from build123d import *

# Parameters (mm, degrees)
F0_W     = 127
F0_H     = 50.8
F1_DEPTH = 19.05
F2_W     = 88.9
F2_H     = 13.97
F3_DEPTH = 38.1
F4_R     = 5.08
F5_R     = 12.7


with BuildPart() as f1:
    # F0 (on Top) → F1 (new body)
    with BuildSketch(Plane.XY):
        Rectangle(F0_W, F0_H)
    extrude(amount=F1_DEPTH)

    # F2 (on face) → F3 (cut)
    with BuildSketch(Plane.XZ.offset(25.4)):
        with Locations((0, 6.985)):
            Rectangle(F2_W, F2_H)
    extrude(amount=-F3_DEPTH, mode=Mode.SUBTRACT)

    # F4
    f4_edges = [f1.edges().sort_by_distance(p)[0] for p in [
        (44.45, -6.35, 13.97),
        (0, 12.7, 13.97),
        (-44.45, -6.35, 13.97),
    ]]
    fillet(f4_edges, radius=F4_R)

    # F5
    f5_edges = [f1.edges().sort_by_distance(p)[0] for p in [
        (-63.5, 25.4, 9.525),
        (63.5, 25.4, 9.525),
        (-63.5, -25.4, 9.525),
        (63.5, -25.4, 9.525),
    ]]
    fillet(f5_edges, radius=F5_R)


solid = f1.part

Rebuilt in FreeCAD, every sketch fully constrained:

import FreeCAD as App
import Part
import Sketcher
from FreeCAD import Vector
Q = App.Units.Quantity


def edges_at(feature, points):
    """Names of the edges that pass closest to the given points."""
    edges = feature.Shape.Edges
    near = lambda p: min(range(len(edges)), key=lambda i: edges[i].distToShape(Part.Vertex(*p))[0])
    return sorted({f"Edge{near(p) + 1}" for p in points})


def add_polygon(sketch, points):
    """Adds a closed chain of lines whose ends are joined by coincident constraints."""
    first, n = sketch.GeometryCount, len(points)
    for a, b in zip(points, points[1:] + points[:1]):
        sketch.addGeometry(Part.LineSegment(App.Vector(*a, 0), App.Vector(*b, 0)), False)
    for i in range(n):
        sketch.addConstraint(Sketcher.Constraint("Coincident", first + i, 2, first + (i + 1) % n, 1))

doc = App.newDocument("Part")
params = doc.addObject("Spreadsheet::Sheet", "Params")
for row, (alias, value) in enumerate([
    ("sketch1_width", "5 in"),
    ("sketch1_height", "2 in"),
    ("pad1_length", "0.75 in"),
    ("sketch2_width", "3.5 in"),
    ("sketch2_height", "0.55 in"),
    ("pocket1_length", "1.5 in"),
    ("fillet_radius", "0.2 in"),
    ("fillet2_radius", "0.5 in"),
], start=1):
    params.set(f"A{row}", alias)
    params.set(f"B{row}", "=" + value)
    params.setAlias(f"B{row}", alias)

body = doc.addObject("PartDesign::Body", "Body")

# Sketch on XY plane
sketch1 = doc.addObject("Sketcher::SketchObject", "Sketch")
body.addObject(sketch1)
sketch1.AttachmentSupport = (doc.XY_Plane, [""])
sketch1.MapMode = "FlatFace"
add_polygon(sketch1, [(-64, 25), (-64, -25), (64, -25), (64, 25)])  # lines 0-3
sketch1.addConstraint([
    Sketcher.Constraint("Vertical", 0),
    Sketcher.Constraint("Horizontal", 1),
    Sketcher.Constraint("Vertical", 2),
    Sketcher.Constraint("Horizontal", 3),
    Sketcher.Constraint("Symmetric", 0, 2, 2, 2, -1, 1),
    Sketcher.Constraint("DistanceX", 1, 1, 1, 2, Q("5 in")),
    Sketcher.Constraint("DistanceY", 0, 2, 0, 1, Q("2 in")),
])
sketch1.setExpression("Constraints[9]", "Params.sketch1_width")
sketch1.setExpression("Constraints[10]", "Params.sketch1_height")
pad1 = doc.addObject("PartDesign::Pad", "Pad")
body.addObject(pad1)
pad1.Profile = sketch1
pad1.setExpression("Length", "Params.pad1_length")

# Sketch on XZ plane
sketch2 = doc.addObject("Sketcher::SketchObject", "Sketch001")
body.addObject(sketch2)
sketch2.AttachmentSupport = (doc.XZ_Plane, [""])
sketch2.MapMode = "FlatFace"
sketch2.AttachmentOffset = App.Placement(Vector(0, 0, 1 * 25.4), App.Rotation())
add_polygon(sketch2, [(-44, 14), (-44, 0), (44, 0), (44, 14)])  # lines 0-3
sketch2.addConstraint([
    Sketcher.Constraint("Vertical", 0),
    Sketcher.Constraint("Horizontal", 1),
    Sketcher.Constraint("Vertical", 2),
    Sketcher.Constraint("Horizontal", 3),
    Sketcher.Constraint("Symmetric", 0, 2, 1, 2, -1, 1),
    Sketcher.Constraint("DistanceX", 1, 1, 1, 2, Q("3.5 in")),
    Sketcher.Constraint("DistanceY", 0, 2, 0, 1, Q("0.55 in")),
])
sketch2.setExpression("Constraints[9]", "Params.sketch2_width")
sketch2.setExpression("Constraints[10]", "Params.sketch2_height")
pocket1 = doc.addObject("PartDesign::Pocket", "Pocket")
body.addObject(pocket1)
pocket1.Profile = sketch2
pocket1.setExpression("Length", "Params.pocket1_length")
doc.recompute()

fillet = doc.addObject("PartDesign::Fillet", "Fillet")
body.addObject(fillet)
fillet.Base = (pocket1, edges_at(pocket1, [(44.45, -6.35, 13.97), (0, 12.7, 13.97), (-44.45, -6.35, 13.97)]))
fillet.setExpression("Radius", "Params.fillet_radius")
doc.recompute()

fillet2 = doc.addObject("PartDesign::Fillet", "Fillet001")
body.addObject(fillet2)
fillet2.Base = (fillet, edges_at(fillet, [
    (-63.5, 25.4, 9.525),
    (63.5, 25.4, 9.525),
    (-63.5, -25.4, 9.525),
    (63.5, -25.4, 9.525),
]))
fillet2.setExpression("Radius", "Params.fillet2_radius")

doc.recompute()
